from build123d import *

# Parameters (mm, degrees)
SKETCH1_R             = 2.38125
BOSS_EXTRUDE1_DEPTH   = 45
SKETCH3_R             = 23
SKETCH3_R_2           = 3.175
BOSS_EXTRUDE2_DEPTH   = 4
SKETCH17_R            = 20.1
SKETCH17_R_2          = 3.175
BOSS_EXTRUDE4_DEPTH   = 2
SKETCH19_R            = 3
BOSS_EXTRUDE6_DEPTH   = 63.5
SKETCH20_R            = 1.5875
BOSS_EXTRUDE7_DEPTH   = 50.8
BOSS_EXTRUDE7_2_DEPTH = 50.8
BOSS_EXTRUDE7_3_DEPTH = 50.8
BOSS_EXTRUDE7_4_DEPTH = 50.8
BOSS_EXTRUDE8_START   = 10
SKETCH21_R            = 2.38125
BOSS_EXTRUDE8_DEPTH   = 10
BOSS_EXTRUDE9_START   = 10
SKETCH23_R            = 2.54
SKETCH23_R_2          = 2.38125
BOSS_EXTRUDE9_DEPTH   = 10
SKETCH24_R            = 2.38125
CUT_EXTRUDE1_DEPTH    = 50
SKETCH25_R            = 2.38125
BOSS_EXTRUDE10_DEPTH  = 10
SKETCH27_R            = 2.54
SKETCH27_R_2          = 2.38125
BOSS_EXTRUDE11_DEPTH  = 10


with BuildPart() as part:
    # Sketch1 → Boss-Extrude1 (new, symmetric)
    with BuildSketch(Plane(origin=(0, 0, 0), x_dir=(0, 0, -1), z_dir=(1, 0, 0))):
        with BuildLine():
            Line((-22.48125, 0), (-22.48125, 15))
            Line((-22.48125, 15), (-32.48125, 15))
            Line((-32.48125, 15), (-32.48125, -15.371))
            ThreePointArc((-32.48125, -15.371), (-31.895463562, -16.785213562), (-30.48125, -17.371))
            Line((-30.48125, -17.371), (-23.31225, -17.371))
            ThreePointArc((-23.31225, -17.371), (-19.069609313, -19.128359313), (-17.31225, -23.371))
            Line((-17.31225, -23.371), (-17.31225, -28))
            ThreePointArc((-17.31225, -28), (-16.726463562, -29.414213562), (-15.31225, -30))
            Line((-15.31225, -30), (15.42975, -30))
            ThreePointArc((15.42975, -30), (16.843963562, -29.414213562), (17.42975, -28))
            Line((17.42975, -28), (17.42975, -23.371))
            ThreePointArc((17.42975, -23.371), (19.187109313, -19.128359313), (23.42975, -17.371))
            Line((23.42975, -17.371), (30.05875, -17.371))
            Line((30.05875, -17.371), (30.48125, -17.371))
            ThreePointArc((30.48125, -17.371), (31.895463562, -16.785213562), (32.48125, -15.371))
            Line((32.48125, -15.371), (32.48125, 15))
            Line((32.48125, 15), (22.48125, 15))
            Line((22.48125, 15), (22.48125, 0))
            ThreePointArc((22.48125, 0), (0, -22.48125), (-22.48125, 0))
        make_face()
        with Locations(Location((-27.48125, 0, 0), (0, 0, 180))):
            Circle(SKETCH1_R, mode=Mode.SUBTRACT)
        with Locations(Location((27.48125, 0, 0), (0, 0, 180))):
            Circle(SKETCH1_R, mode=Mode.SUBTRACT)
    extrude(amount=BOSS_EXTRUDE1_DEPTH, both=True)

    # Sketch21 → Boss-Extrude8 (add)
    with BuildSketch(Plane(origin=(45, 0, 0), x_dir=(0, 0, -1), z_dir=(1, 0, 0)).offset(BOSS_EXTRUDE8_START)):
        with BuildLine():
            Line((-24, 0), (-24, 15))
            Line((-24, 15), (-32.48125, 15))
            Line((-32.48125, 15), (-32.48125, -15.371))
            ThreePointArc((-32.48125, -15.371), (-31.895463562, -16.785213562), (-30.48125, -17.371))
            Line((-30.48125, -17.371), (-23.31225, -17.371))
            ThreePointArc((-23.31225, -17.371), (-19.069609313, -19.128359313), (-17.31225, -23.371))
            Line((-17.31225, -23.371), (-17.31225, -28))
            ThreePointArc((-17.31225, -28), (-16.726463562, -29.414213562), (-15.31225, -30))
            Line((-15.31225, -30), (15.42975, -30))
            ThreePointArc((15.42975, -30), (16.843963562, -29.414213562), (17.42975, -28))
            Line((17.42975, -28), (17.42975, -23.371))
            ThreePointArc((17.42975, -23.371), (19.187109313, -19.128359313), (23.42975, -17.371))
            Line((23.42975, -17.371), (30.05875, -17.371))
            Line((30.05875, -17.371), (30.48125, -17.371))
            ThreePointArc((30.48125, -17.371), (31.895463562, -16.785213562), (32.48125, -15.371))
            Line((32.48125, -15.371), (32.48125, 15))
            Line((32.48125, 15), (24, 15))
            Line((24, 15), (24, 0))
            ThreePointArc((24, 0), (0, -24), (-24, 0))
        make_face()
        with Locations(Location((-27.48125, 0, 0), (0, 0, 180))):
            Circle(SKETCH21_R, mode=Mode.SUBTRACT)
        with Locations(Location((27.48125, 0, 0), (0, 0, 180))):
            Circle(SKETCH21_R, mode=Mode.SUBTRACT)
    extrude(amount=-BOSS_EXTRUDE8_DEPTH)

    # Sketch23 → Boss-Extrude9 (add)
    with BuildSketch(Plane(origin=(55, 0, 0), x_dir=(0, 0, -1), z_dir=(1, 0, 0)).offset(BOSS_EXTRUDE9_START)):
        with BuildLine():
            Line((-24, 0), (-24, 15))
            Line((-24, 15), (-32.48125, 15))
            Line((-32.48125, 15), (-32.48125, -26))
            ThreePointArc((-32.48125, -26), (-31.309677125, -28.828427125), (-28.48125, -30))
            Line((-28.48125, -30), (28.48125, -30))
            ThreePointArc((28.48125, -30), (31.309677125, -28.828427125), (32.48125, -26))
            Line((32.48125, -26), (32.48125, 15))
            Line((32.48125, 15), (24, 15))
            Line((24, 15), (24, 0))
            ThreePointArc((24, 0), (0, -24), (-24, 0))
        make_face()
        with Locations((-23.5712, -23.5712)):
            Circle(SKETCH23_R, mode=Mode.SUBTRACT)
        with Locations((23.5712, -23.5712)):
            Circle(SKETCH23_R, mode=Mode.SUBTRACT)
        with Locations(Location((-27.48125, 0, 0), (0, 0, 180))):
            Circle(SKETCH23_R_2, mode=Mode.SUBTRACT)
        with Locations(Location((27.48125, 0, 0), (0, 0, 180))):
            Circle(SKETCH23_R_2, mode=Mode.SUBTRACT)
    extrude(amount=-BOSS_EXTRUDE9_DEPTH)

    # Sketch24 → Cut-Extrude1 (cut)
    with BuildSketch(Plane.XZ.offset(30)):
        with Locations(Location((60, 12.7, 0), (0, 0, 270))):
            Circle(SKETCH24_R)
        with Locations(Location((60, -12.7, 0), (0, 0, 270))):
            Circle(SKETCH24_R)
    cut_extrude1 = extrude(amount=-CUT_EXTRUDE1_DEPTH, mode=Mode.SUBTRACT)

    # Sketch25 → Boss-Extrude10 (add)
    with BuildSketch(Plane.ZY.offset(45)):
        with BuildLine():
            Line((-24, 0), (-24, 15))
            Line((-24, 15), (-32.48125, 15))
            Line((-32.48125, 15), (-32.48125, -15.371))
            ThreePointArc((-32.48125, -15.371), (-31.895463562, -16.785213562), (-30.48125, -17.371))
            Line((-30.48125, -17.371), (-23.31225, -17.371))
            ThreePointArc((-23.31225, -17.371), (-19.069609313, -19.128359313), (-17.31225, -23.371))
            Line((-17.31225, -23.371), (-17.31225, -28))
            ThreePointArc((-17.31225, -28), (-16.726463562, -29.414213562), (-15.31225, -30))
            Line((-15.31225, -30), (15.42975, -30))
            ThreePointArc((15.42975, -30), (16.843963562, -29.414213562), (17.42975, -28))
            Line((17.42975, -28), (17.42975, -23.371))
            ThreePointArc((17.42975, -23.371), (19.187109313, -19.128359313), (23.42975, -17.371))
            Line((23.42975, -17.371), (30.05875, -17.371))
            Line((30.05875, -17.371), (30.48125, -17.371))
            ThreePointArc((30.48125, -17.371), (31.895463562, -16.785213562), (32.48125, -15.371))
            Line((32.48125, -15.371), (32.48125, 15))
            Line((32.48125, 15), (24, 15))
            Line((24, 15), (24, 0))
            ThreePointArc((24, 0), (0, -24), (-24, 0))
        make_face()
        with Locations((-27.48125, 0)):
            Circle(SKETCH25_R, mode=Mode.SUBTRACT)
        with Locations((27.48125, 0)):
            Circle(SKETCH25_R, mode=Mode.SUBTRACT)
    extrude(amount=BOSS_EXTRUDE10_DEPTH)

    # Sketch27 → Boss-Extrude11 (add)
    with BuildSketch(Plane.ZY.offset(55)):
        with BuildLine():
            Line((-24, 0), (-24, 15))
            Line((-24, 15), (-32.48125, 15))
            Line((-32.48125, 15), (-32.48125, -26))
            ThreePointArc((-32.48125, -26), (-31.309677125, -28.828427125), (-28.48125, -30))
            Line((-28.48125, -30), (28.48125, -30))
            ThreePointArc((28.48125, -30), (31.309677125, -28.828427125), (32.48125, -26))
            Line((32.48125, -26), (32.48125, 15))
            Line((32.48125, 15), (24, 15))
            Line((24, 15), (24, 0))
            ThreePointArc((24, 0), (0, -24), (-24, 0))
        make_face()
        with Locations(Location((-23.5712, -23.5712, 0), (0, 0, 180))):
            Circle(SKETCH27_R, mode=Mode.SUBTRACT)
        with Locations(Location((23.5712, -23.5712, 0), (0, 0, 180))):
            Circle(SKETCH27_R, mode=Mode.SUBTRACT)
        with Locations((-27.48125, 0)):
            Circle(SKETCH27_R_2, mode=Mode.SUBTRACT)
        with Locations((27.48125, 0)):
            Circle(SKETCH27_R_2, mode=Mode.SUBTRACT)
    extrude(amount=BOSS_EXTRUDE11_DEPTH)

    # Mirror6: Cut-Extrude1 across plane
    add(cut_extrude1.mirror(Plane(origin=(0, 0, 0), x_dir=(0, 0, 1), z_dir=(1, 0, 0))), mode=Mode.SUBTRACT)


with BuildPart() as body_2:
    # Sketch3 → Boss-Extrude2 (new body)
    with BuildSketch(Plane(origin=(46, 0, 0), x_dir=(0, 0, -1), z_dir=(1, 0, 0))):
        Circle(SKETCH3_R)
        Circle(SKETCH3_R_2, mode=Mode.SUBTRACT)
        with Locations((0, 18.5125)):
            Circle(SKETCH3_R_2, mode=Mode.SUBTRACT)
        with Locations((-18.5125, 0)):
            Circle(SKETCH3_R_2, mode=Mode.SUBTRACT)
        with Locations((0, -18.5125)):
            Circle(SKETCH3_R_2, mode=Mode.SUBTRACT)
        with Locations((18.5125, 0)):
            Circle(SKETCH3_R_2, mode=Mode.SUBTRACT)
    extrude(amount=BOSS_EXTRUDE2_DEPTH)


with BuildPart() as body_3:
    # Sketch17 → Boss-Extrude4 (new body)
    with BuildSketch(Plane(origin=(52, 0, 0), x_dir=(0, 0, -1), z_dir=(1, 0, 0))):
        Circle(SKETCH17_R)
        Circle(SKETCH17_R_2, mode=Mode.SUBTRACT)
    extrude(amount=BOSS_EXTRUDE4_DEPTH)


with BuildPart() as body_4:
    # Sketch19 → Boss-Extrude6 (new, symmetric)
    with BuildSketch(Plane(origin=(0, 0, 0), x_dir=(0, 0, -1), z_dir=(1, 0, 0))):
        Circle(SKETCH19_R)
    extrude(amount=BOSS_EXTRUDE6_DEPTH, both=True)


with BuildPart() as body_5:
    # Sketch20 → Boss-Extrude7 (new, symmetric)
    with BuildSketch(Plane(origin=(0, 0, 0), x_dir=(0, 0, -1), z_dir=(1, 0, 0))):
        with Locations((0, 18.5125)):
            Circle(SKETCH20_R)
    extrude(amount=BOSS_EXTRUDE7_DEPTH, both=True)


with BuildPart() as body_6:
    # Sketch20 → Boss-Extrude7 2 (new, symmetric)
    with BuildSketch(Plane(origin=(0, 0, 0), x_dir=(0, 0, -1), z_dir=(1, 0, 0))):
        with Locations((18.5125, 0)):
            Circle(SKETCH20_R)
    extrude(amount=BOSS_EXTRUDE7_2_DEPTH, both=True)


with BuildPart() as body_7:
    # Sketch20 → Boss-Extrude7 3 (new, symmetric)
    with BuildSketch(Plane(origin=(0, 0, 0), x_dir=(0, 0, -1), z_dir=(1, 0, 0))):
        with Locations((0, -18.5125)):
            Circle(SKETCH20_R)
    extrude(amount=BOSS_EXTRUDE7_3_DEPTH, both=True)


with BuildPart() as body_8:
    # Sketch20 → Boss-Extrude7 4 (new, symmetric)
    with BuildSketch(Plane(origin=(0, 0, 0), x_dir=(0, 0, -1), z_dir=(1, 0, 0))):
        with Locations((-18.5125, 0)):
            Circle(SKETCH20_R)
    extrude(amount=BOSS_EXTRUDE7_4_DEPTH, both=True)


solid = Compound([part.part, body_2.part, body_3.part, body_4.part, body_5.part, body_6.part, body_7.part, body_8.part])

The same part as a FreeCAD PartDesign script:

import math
import FreeCAD as App
import Part
import Sketcher

V = App.Vector
Q = App.Units.Quantity

doc = App.newDocument("Part")
body = doc.addObject("PartDesign::Body", "Body")

# Sketch on YZ plane
sketch1 = doc.addObject("Sketcher::SketchObject", "Sketch")
body.addObject(sketch1)
sketch1.AttachmentSupport = (doc.YZ_Plane, [""])
sketch1.MapMode = "FlatFace"
sketch1.addGeometry(Part.LineSegment(V(0, 22.5, 0), V(15, 22.5, 0)), False)
sketch1.addGeometry(Part.LineSegment(V(15, 22.5, 0), V(15, 32.5, 0)), False)
sketch1.addGeometry(Part.LineSegment(V(15, 32.5, 0), V(-15.4, 32.5, 0)), False)
sketch1.addGeometry(Part.ArcOfCircle(Part.Circle(V(-15.4, 30.5, 0), V(0, 0, 1), 2), math.radians(90), math.radians(180)), False)
sketch1.addGeometry(Part.LineSegment(V(-17.4, 30.5, 0), V(-17.4, 23.3, 0)), False)
sketch1.addGeometry(Part.ArcOfCircle(Part.Circle(V(-23.4, 23.3, 0), V(0, 0, 1), 6), math.radians(-90), math.radians(0)), False)
sketch1.addGeometry(Part.LineSegment(V(-23.4, 17.3, 0), V(-28, 17.3, 0)), False)
sketch1.addGeometry(Part.ArcOfCircle(Part.Circle(V(-28, 15.3, 0), V(0, 0, 1), 2), math.radians(90), math.radians(180)), False)
sketch1.addGeometry(Part.LineSegment(V(-30, 15.3, 0), V(-30, -15.4, 0)), False)
sketch1.addGeometry(Part.ArcOfCircle(Part.Circle(V(-28, -15.4, 0), V(0, 0, 1), 2), math.radians(-180), math.radians(-90)), False)
sketch1.addGeometry(Part.LineSegment(V(-28, -17.4, 0), V(-23.4, -17.4, 0)), False)
sketch1.addGeometry(Part.ArcOfCircle(Part.Circle(V(-23.4, -23.4, 0), V(0, 0, 1), 6), math.radians(0), math.radians(90)), False)
sketch1.addGeometry(Part.LineSegment(V(-17.4, -23.4, 0), V(-17.4, -30.5, 0)), False)
sketch1.addGeometry(Part.ArcOfCircle(Part.Circle(V(-15.4, -30.5, 0), V(0, 0, 1), 2), math.radians(-180), math.radians(-90)), False)
sketch1.addGeometry(Part.LineSegment(V(-15.4, -32.5, 0), V(15, -32.5, 0)), False)
sketch1.addGeometry(Part.LineSegment(V(15, -32.5, 0), V(15, -22.5, 0)), False)
sketch1.addGeometry(Part.LineSegment(V(15, -22.5, 0), V(0, -22.5, 0)), False)
sketch1.addGeometry(Part.ArcOfCircle(Part.Circle(V(0, 0, 0), V(0, 0, 1), 22.5), math.radians(90), math.radians(270)), False)
sketch1.addGeometry(Part.Circle(V(0, 27.5, 0), V(0, 0, 1), 2.4), False)
sketch1.addGeometry(Part.Circle(V(0, -27.5, 0), V(0, 0, 1), 2.4), False)
sketch1.addConstraint(Sketcher.Constraint("Coincident", 0, 2, 1, 1))
sketch1.addConstraint(Sketcher.Constraint("Coincident", 1, 2, 2, 1))
sketch1.addConstraint(Sketcher.Constraint("Tangent", 2, 2, 3, 1))
sketch1.addConstraint(Sketcher.Constraint("Tangent", 3, 2, 4, 1))
sketch1.addConstraint(Sketcher.Constraint("Tangent", 4, 2, 5, 2))
sketch1.addConstraint(Sketcher.Constraint("Tangent", 5, 1, 6, 1))
sketch1.addConstraint(Sketcher.Constraint("Tangent", 6, 2, 7, 1))
sketch1.addConstraint(Sketcher.Constraint("Tangent", 7, 2, 8, 1))
sketch1.addConstraint(Sketcher.Constraint("Tangent", 8, 2, 9, 1))
sketch1.addConstraint(Sketcher.Constraint("Tangent", 9, 2, 10, 1))
sketch1.addConstraint(Sketcher.Constraint("Tangent", 10, 2, 11, 2))
sketch1.addConstraint(Sketcher.Constraint("Tangent", 11, 1, 12, 1))
sketch1.addConstraint(Sketcher.Constraint("Tangent", 12, 2, 13, 1))
sketch1.addConstraint(Sketcher.Constraint("Tangent", 13, 2, 14, 1))
sketch1.addConstraint(Sketcher.Constraint("Coincident", 14, 2, 15, 1))
sketch1.addConstraint(Sketcher.Constraint("Coincident", 15, 2, 16, 1))
sketch1.addConstraint(Sketcher.Constraint("Tangent", 16, 2, 17, 2))
sketch1.addConstraint(Sketcher.Constraint("Tangent", 17, 1, 0, 1))
sketch1.addConstraint(Sketcher.Constraint("Horizontal", 0))
sketch1.addConstraint(Sketcher.Constraint("Vertical", 1))
sketch1.addConstraint(Sketcher.Constraint("Horizontal", 2))
sketch1.addConstraint(Sketcher.Constraint("Vertical", 4))
sketch1.addConstraint(Sketcher.Constraint("Horizontal", 6))
sketch1.addConstraint(Sketcher.Constraint("Vertical", 8))
sketch1.addConstraint(Sketcher.Constraint("Horizontal", 10))
sketch1.addConstraint(Sketcher.Constraint("Vertical", 12))
sketch1.addConstraint(Sketcher.Constraint("Horizontal", 14))
sketch1.addConstraint(Sketcher.Constraint("Vertical", 15))
sketch1.addConstraint(Sketcher.Constraint("Horizontal", 16))
sketch1.addConstraint(Sketcher.Constraint("Coincident", 17, 3, -1, 1))
sketch1.addConstraint(Sketcher.Constraint("Equal", 3, 7))
sketch1.addConstraint(Sketcher.Constraint("Equal", 7, 9))
sketch1.addConstraint(Sketcher.Constraint("Equal", 5, 11))
sketch1.addConstraint(Sketcher.Constraint("Equal", 9, 13))
sketch1.addConstraint(Sketcher.Constraint("Equal", 18, 19))
sketch1.addConstraint(Sketcher.Constraint("Symmetric", 18, 3, 19, 3, -1, 1))
sketch1.addConstraint(Sketcher.Constraint("Symmetric", 3, 3, 13, 3, -1))
sketch1.addConstraint(Sketcher.Constraint("PointOnObject", 18, 3, -2))
sketch1.addConstraint(Sketcher.Constraint("Vertical", 1, 2, 14, 2))
sketch1.addConstraint(Sketcher.Constraint("Radius", 3, Q("2 mm")))
sketch1.addConstraint(Sketcher.Constraint("Radius", 5, Q("6 mm")))
sketch1.addConstraint(Sketcher.Constraint("DistanceX", 0, 1, 0, 2, Q("15 mm")))
sketch1.addConstraint(Sketcher.Constraint("DistanceY", 1, 1, 1, 2, Q("10 mm")))
sketch1.addConstraint(Sketcher.Constraint("DistanceX", 7, 3, -1, 1, Q("28 mm")))
sketch1.addConstraint(Sketcher.Constraint("DistanceY", 18, 3, 3, 3, Q("3 mm")))
sketch1.addConstraint(Sketcher.Constraint("Diameter", 18, Q("4.7625 mm")))
sketch1.addConstraint(Sketcher.Constraint("DistanceX", 2, 2, 2, 1, Q("30.371 mm")))
sketch1.addConstraint(Sketcher.Constraint("DistanceY", 4, 2, 4, 1, Q("7.169 mm")))
sketch1.addConstraint(Sketcher.Constraint("DistanceY", 8, 2, 8, 1, Q("30.742 mm")))
sketch1.addConstraint(Sketcher.Constraint("Radius", 17, Q("22.48125 mm")))
pad1 = doc.addObject("PartDesign::Pad", "Pad")
body.addObject(pad1)
pad1.Profile = sketch1
pad1.Length = 90
pad1.Midplane = True

# Sketch on YZ plane
sketch2 = doc.addObject("Sketcher::SketchObject", "Sketch001")
body.addObject(sketch2)
sketch2.AttachmentSupport = (doc.YZ_Plane, [""])
sketch2.MapMode = "FlatFace"
sketch2.AttachmentOffset = App.Placement(V(0, 0, 55), App.Rotation())
sketch2.addGeometry(Part.LineSegment(V(0, 24, 0), V(15, 24, 0)), False)
sketch2.addGeometry(Part.LineSegment(V(15, 24, 0), V(15, 32.5, 0)), False)
sketch2.addGeometry(Part.LineSegment(V(15, 32.5, 0), V(-15.4, 32.5, 0)), False)
sketch2.addGeometry(Part.ArcOfCircle(Part.Circle(V(-15.4, 30.5, 0), V(0, 0, 1), 2), math.radians(90), math.radians(180)), False)
sketch2.addGeometry(Part.LineSegment(V(-17.4, 30.5, 0), V(-17.4, 23.3, 0)), False)
sketch2.addGeometry(Part.ArcOfCircle(Part.Circle(V(-23.4, 23.3, 0), V(0, 0, 1), 6), math.radians(-90), math.radians(0)), False)
sketch2.addGeometry(Part.LineSegment(V(-23.4, 17.3, 0), V(-28, 17.3, 0)), False)
sketch2.addGeometry(Part.ArcOfCircle(Part.Circle(V(-28, 15.3, 0), V(0, 0, 1), 2), math.radians(90), math.radians(180)), False)
sketch2.addGeometry(Part.LineSegment(V(-30, 15.3, 0), V(-30, -15.4, 0)), False)
sketch2.addGeometry(Part.ArcOfCircle(Part.Circle(V(-28, -15.4, 0), V(0, 0, 1), 2), math.radians(-180), math.radians(-90)), False)
sketch2.addGeometry(Part.LineSegment(V(-28, -17.4, 0), V(-23.4, -17.4, 0)), False)
sketch2.addGeometry(Part.ArcOfCircle(Part.Circle(V(-23.4, -23.4, 0), V(0, 0, 1), 6), math.radians(0), math.radians(90)), False)
sketch2.addGeometry(Part.LineSegment(V(-17.4, -23.4, 0), V(-17.4, -30.5, 0)), False)
sketch2.addGeometry(Part.ArcOfCircle(Part.Circle(V(-15.4, -30.5, 0), V(0, 0, 1), 2), math.radians(-180), math.radians(-90)), False)
sketch2.addGeometry(Part.LineSegment(V(-15.4, -32.5, 0), V(15, -32.5, 0)), False)
sketch2.addGeometry(Part.LineSegment(V(15, -32.5, 0), V(15, -24, 0)), False)
sketch2.addGeometry(Part.LineSegment(V(15, -24, 0), V(0, -24, 0)), False)
sketch2.addGeometry(Part.ArcOfCircle(Part.Circle(V(0, 0, 0), V(0, 0, 1), 24), math.radians(90), math.radians(270)), False)
sketch2.addGeometry(Part.Circle(V(0, 27.5, 0), V(0, 0, 1), 2.4), False)
sketch2.addGeometry(Part.Circle(V(0, -27.5, 0), V(0, 0, 1), 2.4), False)
sketch2.addConstraint(Sketcher.Constraint("Coincident", 0, 2, 1, 1))
sketch2.addConstraint(Sketcher.Constraint("Coincident", 1, 2, 2, 1))
sketch2.addConstraint(Sketcher.Constraint("Tangent", 2, 2, 3, 1))
sketch2.addConstraint(Sketcher.Constraint("Tangent", 3, 2, 4, 1))
sketch2.addConstraint(Sketcher.Constraint("Tangent", 4, 2, 5, 2))
sketch2.addConstraint(Sketcher.Constraint("Tangent", 5, 1, 6, 1))
sketch2.addConstraint(Sketcher.Constraint("Tangent", 6, 2, 7, 1))
sketch2.addConstraint(Sketcher.Constraint("Tangent", 7, 2, 8, 1))
sketch2.addConstraint(Sketcher.Constraint("Tangent", 8, 2, 9, 1))
sketch2.addConstraint(Sketcher.Constraint("Tangent", 9, 2, 10, 1))
sketch2.addConstraint(Sketcher.Constraint("Tangent", 10, 2, 11, 2))
sketch2.addConstraint(Sketcher.Constraint("Tangent", 11, 1, 12, 1))
sketch2.addConstraint(Sketcher.Constraint("Tangent", 12, 2, 13, 1))
sketch2.addConstraint(Sketcher.Constraint("Tangent", 13, 2, 14, 1))
sketch2.addConstraint(Sketcher.Constraint("Coincident", 14, 2, 15, 1))
sketch2.addConstraint(Sketcher.Constraint("Coincident", 15, 2, 16, 1))
sketch2.addConstraint(Sketcher.Constraint("Tangent", 16, 2, 17, 2))
sketch2.addConstraint(Sketcher.Constraint("Tangent", 17, 1, 0, 1))
sketch2.addConstraint(Sketcher.Constraint("Horizontal", 0))
sketch2.addConstraint(Sketcher.Constraint("Vertical", 1))
sketch2.addConstraint(Sketcher.Constraint("Horizontal", 2))
sketch2.addConstraint(Sketcher.Constraint("Vertical", 4))
sketch2.addConstraint(Sketcher.Constraint("Horizontal", 6))
sketch2.addConstraint(Sketcher.Constraint("Vertical", 8))
sketch2.addConstraint(Sketcher.Constraint("Horizontal", 10))
sketch2.addConstraint(Sketcher.Constraint("Vertical", 12))
sketch2.addConstraint(Sketcher.Constraint("Horizontal", 14))
sketch2.addConstraint(Sketcher.Constraint("Vertical", 15))
sketch2.addConstraint(Sketcher.Constraint("Horizontal", 16))
sketch2.addConstraint(Sketcher.Constraint("Coincident", 17, 3, -1, 1))
sketch2.addConstraint(Sketcher.Constraint("Equal", 3, 7))
sketch2.addConstraint(Sketcher.Constraint("Equal", 7, 9))
sketch2.addConstraint(Sketcher.Constraint("Equal", 5, 11))
sketch2.addConstraint(Sketcher.Constraint("Equal", 9, 13))
sketch2.addConstraint(Sketcher.Constraint("Equal", 18, 19))
sketch2.addConstraint(Sketcher.Constraint("Symmetric", 18, 3, 19, 3, -1, 1))
sketch2.addConstraint(Sketcher.Constraint("Symmetric", 3, 3, 13, 3, -1))
sketch2.addConstraint(Sketcher.Constraint("PointOnObject", 18, 3, -2))
sketch2.addConstraint(Sketcher.Constraint("Vertical", 1, 2, 14, 2))
sketch2.addConstraint(Sketcher.Constraint("Radius", 3, Q("2 mm")))
sketch2.addConstraint(Sketcher.Constraint("Radius", 5, Q("6 mm")))
sketch2.addConstraint(Sketcher.Constraint("Radius", 17, Q("24 mm")))
sketch2.addConstraint(Sketcher.Constraint("DistanceX", 0, 1, 0, 2, Q("15 mm")))
sketch2.addConstraint(Sketcher.Constraint("DistanceX", 7, 3, -1, 1, Q("28 mm")))
sketch2.addConstraint(Sketcher.Constraint("DistanceY", 18, 3, 3, 3, Q("3 mm")))
sketch2.addConstraint(Sketcher.Constraint("Diameter", 18, Q("4.7625 mm")))
sketch2.addConstraint(Sketcher.Constraint("DistanceX", 2, 2, 2, 1, Q("30.371 mm")))
sketch2.addConstraint(Sketcher.Constraint("DistanceY", 4, 2, 4, 1, Q("7.169 mm")))
sketch2.addConstraint(Sketcher.Constraint("DistanceY", 8, 2, 8, 1, Q("30.742 mm")))
sketch2.addConstraint(Sketcher.Constraint("DistanceY", 12, 2, 12, 1, Q("7.0515 mm")))
pad2 = doc.addObject("PartDesign::Pad", "Pad001")
body.addObject(pad2)
pad2.Profile = sketch2
pad2.Length = 10
pad2.Reversed = True

# Sketch on YZ plane
sketch3 = doc.addObject("Sketcher::SketchObject", "Sketch002")
body.addObject(sketch3)
sketch3.AttachmentSupport = (doc.YZ_Plane, [""])
sketch3.MapMode = "FlatFace"
sketch3.AttachmentOffset = App.Placement(V(0, 0, 65), App.Rotation())
sketch3.addGeometry(Part.LineSegment(V(0, 24, 0), V(15, 24, 0)), False)
sketch3.addGeometry(Part.LineSegment(V(15, 24, 0), V(15, 32.5, 0)), False)
sketch3.addGeometry(Part.LineSegment(V(15, 32.5, 0), V(-26, 32.5, 0)), False)
sketch3.addGeometry(Part.ArcOfCircle(Part.Circle(V(-26, 28.5, 0), V(0, 0, 1), 4), math.radians(90), math.radians(180)), False)
sketch3.addGeometry(Part.LineSegment(V(-30, 28.5, 0), V(-30, -28.5, 0)), False)
sketch3.addGeometry(Part.ArcOfCircle(Part.Circle(V(-26, -28.5, 0), V(0, 0, 1), 4), math.radians(180), math.radians(270)), False)
sketch3.addGeometry(Part.LineSegment(V(-26, -32.5, 0), V(15, -32.5, 0)), False)
sketch3.addGeometry(Part.LineSegment(V(15, -32.5, 0), V(15, -24, 0)), False)
sketch3.addGeometry(Part.LineSegment(V(15, -24, 0), V(0, -24, 0)), False)
sketch3.addGeometry(Part.ArcOfCircle(Part.Circle(V(0, 0, 0), V(0, 0, 1), 24), math.radians(90), math.radians(270)), False)
sketch3.addGeometry(Part.Circle(V(-23.6, 23.6, 0), V(0, 0, 1), 2.5), False)
sketch3.addGeometry(Part.Circle(V(-23.6, -23.6, 0), V(0, 0, 1), 2.5), False)
sketch3.addGeometry(Part.Circle(V(0, 27.5, 0), V(0, 0, 1), 2.4), False)
sketch3.addGeometry(Part.Circle(V(0, -27.5, 0), V(0, 0, 1), 2.4), False)
sketch3.addConstraint(Sketcher.Constraint("Coincident", 0, 2, 1, 1))
sketch3.addConstraint(Sketcher.Constraint("Coincident", 1, 2, 2, 1))
sketch3.addConstraint(Sketcher.Constraint("Tangent", 2, 2, 3, 1))
sketch3.addConstraint(Sketcher.Constraint("Tangent", 3, 2, 4, 1))
sketch3.addConstraint(Sketcher.Constraint("Tangent", 4, 2, 5, 1))
sketch3.addConstraint(Sketcher.Constraint("Tangent", 5, 2, 6, 1))
sketch3.addConstraint(Sketcher.Constraint("Coincident", 6, 2, 7, 1))
sketch3.addConstraint(Sketcher.Constraint("Coincident", 7, 2, 8, 1))
sketch3.addConstraint(Sketcher.Constraint("Tangent", 8, 2, 9, 2))
sketch3.addConstraint(Sketcher.Constraint("Tangent", 9, 1, 0, 1))
sketch3.addConstraint(Sketcher.Constraint("Horizontal", 0))
sketch3.addConstraint(Sketcher.Constraint("Vertical", 1))
sketch3.addConstraint(Sketcher.Constraint("Horizontal", 2))
sketch3.addConstraint(Sketcher.Constraint("Vertical", 4))
sketch3.addConstraint(Sketcher.Constraint("Horizontal", 6))
sketch3.addConstraint(Sketcher.Constraint("Vertical", 7))
sketch3.addConstraint(Sketcher.Constraint("Horizontal", 8))
sketch3.addConstraint(Sketcher.Constraint("Coincident", 9, 3, -1, 1))
sketch3.addConstraint(Sketcher.Constraint("Equal", 3, 5))
sketch3.addConstraint(Sketcher.Constraint("Equal", 10, 11))
sketch3.addConstraint(Sketcher.Constraint("Equal", 12, 13))
sketch3.addConstraint(Sketcher.Constraint("Symmetric", 12, 3, 13, 3, -1, 1))
sketch3.addConstraint(Sketcher.Constraint("Symmetric", 10, 3, 11, 3, -1))
sketch3.addConstraint(Sketcher.Constraint("Symmetric", 1, 2, 6, 2, -1))
sketch3.addConstraint(Sketcher.Constraint("PointOnObject", 12, 3, -2))
sketch3.addConstraint(Sketcher.Constraint("Radius", 3, Q("4 mm")))
sketch3.addConstraint(Sketcher.Constraint("Radius", 9, Q("24 mm")))
sketch3.addConstraint(Sketcher.Constraint("Diameter", 10, Q("5.08 mm")))
sketch3.addConstraint(Sketcher.Constraint("DistanceX", 0, 1, 0, 2, Q("15 mm")))
sketch3.addConstraint(Sketcher.Constraint("DistanceX", 2, 2, 2, 1, Q("41 mm")))
sketch3.addConstraint(Sketcher.Constraint("DistanceY", 12, 3, 3, 3, Q("1 mm")))
sketch3.addConstraint(Sketcher.Constraint("Diameter", 12, Q("4.7625 mm")))
sketch3.addConstraint(Sketcher.Constraint("DistanceY", 4, 2, 4, 1, Q("56.9625 mm")))
sketch3.addConstraint(Sketcher.Constraint("DistanceX", 10, 3, -1, 1, Q("23.5712 mm")))
sketch3.addConstraint(Sketcher.Constraint("DistanceY", -1, 1, 10, 3, Q("23.5712 mm")))
pad3 = doc.addObject("PartDesign::Pad", "Pad002")
body.addObject(pad3)
pad3.Profile = sketch3
pad3.Length = 10
pad3.Reversed = True

# Sketch on XZ plane
sketch4 = doc.addObject("Sketcher::SketchObject", "Sketch003")
body.addObject(sketch4)
sketch4.AttachmentSupport = (doc.XZ_Plane, [""])
sketch4.MapMode = "FlatFace"
sketch4.AttachmentOffset = App.Placement(V(0, 0, 30), App.Rotation())
sketch4.addGeometry(Part.Circle(V(60, 12.7, 0), V(0, 0, 1), 2.4), False)
sketch4.addGeometry(Part.Circle(V(60, -12.7, 0), V(0, 0, 1), 2.4), False)
sketch4.addConstraint(Sketcher.Constraint("Equal", 0, 1))
sketch4.addConstraint(Sketcher.Constraint("Symmetric", 0, 3, 1, 3, -1))
sketch4.addConstraint(Sketcher.Constraint("DistanceX", -1, 1, 0, 3, Q("60 mm")))
sketch4.addConstraint(Sketcher.Constraint("Diameter", 0, Q("4.7625 mm")))
sketch4.addConstraint(Sketcher.Constraint("DistanceY", -1, 1, 0, 3, Q("12.7 mm")))
pocket1 = doc.addObject("PartDesign::Pocket", "Pocket")
body.addObject(pocket1)
pocket1.Profile = sketch4
pocket1.Length = 50

# Sketch on YZ plane
sketch5 = doc.addObject("Sketcher::SketchObject", "Sketch004")
body.addObject(sketch5)
sketch5.AttachmentSupport = (doc.YZ_Plane, [""])
sketch5.MapMode = "FlatFace"
sketch5.AttachmentOffset = App.Placement(V(0, 0, -45), App.Rotation())
sketch5.addGeometry(Part.LineSegment(V(0, -24, 0), V(15, -24, 0)), False)
sketch5.addGeometry(Part.LineSegment(V(15, -24, 0), V(15, -32.5, 0)), False)
sketch5.addGeometry(Part.LineSegment(V(15, -32.5, 0), V(-15.4, -32.5, 0)), False)
sketch5.addGeometry(Part.ArcOfCircle(Part.Circle(V(-15.4, -30.5, 0), V(0, 0, 1), 2), math.radians(-180), math.radians(-90)), False)
sketch5.addGeometry(Part.LineSegment(V(-17.4, -30.5, 0), V(-17.4, -23.3, 0)), False)
sketch5.addGeometry(Part.ArcOfCircle(Part.Circle(V(-23.4, -23.3, 0), V(0, 0, 1), 6), math.radians(0), math.radians(90)), False)
sketch5.addGeometry(Part.LineSegment(V(-23.4, -17.3, 0), V(-28, -17.3, 0)), False)
sketch5.addGeometry(Part.ArcOfCircle(Part.Circle(V(-28, -15.3, 0), V(0, 0, 1), 2), math.radians(-180), math.radians(-90)), False)
sketch5.addGeometry(Part.LineSegment(V(-30, -15.3, 0), V(-30, 15.4, 0)), False)
sketch5.addGeometry(Part.ArcOfCircle(Part.Circle(V(-28, 15.4, 0), V(0, 0, 1), 2), math.radians(90), math.radians(180)), False)
sketch5.addGeometry(Part.LineSegment(V(-28, 17.4, 0), V(-23.4, 17.4, 0)), False)
sketch5.addGeometry(Part.ArcOfCircle(Part.Circle(V(-23.4, 23.4, 0), V(0, 0, 1), 6), math.radians(-90), math.radians(0)), False)
sketch5.addGeometry(Part.LineSegment(V(-17.4, 23.4, 0), V(-17.4, 30.5, 0)), False)
sketch5.addGeometry(Part.ArcOfCircle(Part.Circle(V(-15.4, 30.5, 0), V(0, 0, 1), 2), math.radians(90), math.radians(180)), False)
sketch5.addGeometry(Part.LineSegment(V(-15.4, 32.5, 0), V(15, 32.5, 0)), False)
sketch5.addGeometry(Part.LineSegment(V(15, 32.5, 0), V(15, 24, 0)), False)
sketch5.addGeometry(Part.LineSegment(V(15, 24, 0), V(0, 24, 0)), False)
sketch5.addGeometry(Part.ArcOfCircle(Part.Circle(V(0, 0, 0), V(0, 0, 1), 24), math.radians(90), math.radians(270)), False)
sketch5.addGeometry(Part.Circle(V(0, -27.5, 0), V(0, 0, 1), 2.4), False)
sketch5.addGeometry(Part.Circle(V(0, 27.5, 0), V(0, 0, 1), 2.4), False)
sketch5.addConstraint(Sketcher.Constraint("Coincident", 0, 2, 1, 1))
sketch5.addConstraint(Sketcher.Constraint("Coincident", 1, 2, 2, 1))
sketch5.addConstraint(Sketcher.Constraint("Tangent", 2, 2, 3, 2))
sketch5.addConstraint(Sketcher.Constraint("Tangent", 3, 1, 4, 1))
sketch5.addConstraint(Sketcher.Constraint("Tangent", 4, 2, 5, 1))
sketch5.addConstraint(Sketcher.Constraint("Tangent", 5, 2, 6, 1))
sketch5.addConstraint(Sketcher.Constraint("Tangent", 6, 2, 7, 2))
sketch5.addConstraint(Sketcher.Constraint("Tangent", 7, 1, 8, 1))
sketch5.addConstraint(Sketcher.Constraint("Tangent", 8, 2, 9, 2))
sketch5.addConstraint(Sketcher.Constraint("Tangent", 9, 1, 10, 1))
sketch5.addConstraint(Sketcher.Constraint("Tangent", 10, 2, 11, 1))
sketch5.addConstraint(Sketcher.Constraint("Tangent", 11, 2, 12, 1))
sketch5.addConstraint(Sketcher.Constraint("Tangent", 12, 2, 13, 2))
sketch5.addConstraint(Sketcher.Constraint("Tangent", 13, 1, 14, 1))
sketch5.addConstraint(Sketcher.Constraint("Coincident", 14, 2, 15, 1))
sketch5.addConstraint(Sketcher.Constraint("Coincident", 15, 2, 16, 1))
sketch5.addConstraint(Sketcher.Constraint("Tangent", 16, 2, 17, 1))
sketch5.addConstraint(Sketcher.Constraint("Tangent", 17, 2, 0, 1))
sketch5.addConstraint(Sketcher.Constraint("Horizontal", 0))
sketch5.addConstraint(Sketcher.Constraint("Vertical", 1))
sketch5.addConstraint(Sketcher.Constraint("Horizontal", 2))
sketch5.addConstraint(Sketcher.Constraint("Vertical", 4))
sketch5.addConstraint(Sketcher.Constraint("Horizontal", 6))
sketch5.addConstraint(Sketcher.Constraint("Vertical", 8))
sketch5.addConstraint(Sketcher.Constraint("Horizontal", 10))
sketch5.addConstraint(Sketcher.Constraint("Vertical", 12))
sketch5.addConstraint(Sketcher.Constraint("Horizontal", 14))
sketch5.addConstraint(Sketcher.Constraint("Vertical", 15))
sketch5.addConstraint(Sketcher.Constraint("Horizontal", 16))
sketch5.addConstraint(Sketcher.Constraint("Coincident", 17, 3, -1, 1))
sketch5.addConstraint(Sketcher.Constraint("Equal", 3, 7))
sketch5.addConstraint(Sketcher.Constraint("Equal", 7, 9))
sketch5.addConstraint(Sketcher.Constraint("Equal", 5, 11))
sketch5.addConstraint(Sketcher.Constraint("Equal", 9, 13))
sketch5.addConstraint(Sketcher.Constraint("Equal", 18, 19))
sketch5.addConstraint(Sketcher.Constraint("Symmetric", 18, 3, 19, 3, -1, 1))
sketch5.addConstraint(Sketcher.Constraint("Symmetric", 3, 3, 13, 3, -1))
sketch5.addConstraint(Sketcher.Constraint("PointOnObject", 18, 3, -2))
sketch5.addConstraint(Sketcher.Constraint("Vertical", 1, 2, 14, 2))
sketch5.addConstraint(Sketcher.Constraint("Radius", 3, Q("2 mm")))
sketch5.addConstraint(Sketcher.Constraint("Radius", 5, Q("6 mm")))
sketch5.addConstraint(Sketcher.Constraint("Radius", 17, Q("24 mm")))
sketch5.addConstraint(Sketcher.Constraint("DistanceX", 0, 1, 0, 2, Q("15 mm")))
sketch5.addConstraint(Sketcher.Constraint("DistanceX", 7, 3, -1, 1, Q("28 mm")))
sketch5.addConstraint(Sketcher.Constraint("DistanceY", 3, 3, 18, 3, Q("3 mm")))
sketch5.addConstraint(Sketcher.Constraint("Diameter", 18, Q("4.7625 mm")))
sketch5.addConstraint(Sketcher.Constraint("DistanceX", 2, 2, 2, 1, Q("30.371 mm")))
sketch5.addConstraint(Sketcher.Constraint("DistanceY", 4, 1, 4, 2, Q("7.169 mm")))
sketch5.addConstraint(Sketcher.Constraint("DistanceY", 8, 1, 8, 2, Q("30.742 mm")))
sketch5.addConstraint(Sketcher.Constraint("DistanceY", 12, 1, 12, 2, Q("7.0515 mm")))
pad4 = doc.addObject("PartDesign::Pad", "Pad003")
body.addObject(pad4)
pad4.Profile = sketch5
pad4.Length = 10
pad4.Reversed = True

# Sketch on YZ plane
sketch6 = doc.addObject("Sketcher::SketchObject", "Sketch005")
body.addObject(sketch6)
sketch6.AttachmentSupport = (doc.YZ_Plane, [""])
sketch6.MapMode = "FlatFace"
sketch6.AttachmentOffset = App.Placement(V(0, 0, -55), App.Rotation())
sketch6.addGeometry(Part.LineSegment(V(0, -24, 0), V(15, -24, 0)), False)
sketch6.addGeometry(Part.LineSegment(V(15, -24, 0), V(15, -32.5, 0)), False)
sketch6.addGeometry(Part.LineSegment(V(15, -32.5, 0), V(-26, -32.5, 0)), False)
sketch6.addGeometry(Part.ArcOfCircle(Part.Circle(V(-26, -28.5, 0), V(0, 0, 1), 4), math.radians(180), math.radians(270)), False)
sketch6.addGeometry(Part.LineSegment(V(-30, -28.5, 0), V(-30, 28.5, 0)), False)
sketch6.addGeometry(Part.ArcOfCircle(Part.Circle(V(-26, 28.5, 0), V(0, 0, 1), 4), math.radians(90), math.radians(180)), False)
sketch6.addGeometry(Part.LineSegment(V(-26, 32.5, 0), V(15, 32.5, 0)), False)
sketch6.addGeometry(Part.LineSegment(V(15, 32.5, 0), V(15, 24, 0)), False)
sketch6.addGeometry(Part.LineSegment(V(15, 24, 0), V(0, 24, 0)), False)
sketch6.addGeometry(Part.ArcOfCircle(Part.Circle(V(0, 0, 0), V(0, 0, 1), 24), math.radians(90), math.radians(270)), False)
sketch6.addGeometry(Part.Circle(V(-23.6, -23.6, 0), V(0, 0, 1), 2.5), False)
sketch6.addGeometry(Part.Circle(V(-23.6, 23.6, 0), V(0, 0, 1), 2.5), False)
sketch6.addGeometry(Part.Circle(V(0, -27.5, 0), V(0, 0, 1), 2.4), False)
sketch6.addGeometry(Part.Circle(V(0, 27.5, 0), V(0, 0, 1), 2.4), False)
sketch6.addConstraint(Sketcher.Constraint("Coincident", 0, 2, 1, 1))
sketch6.addConstraint(Sketcher.Constraint("Coincident", 1, 2, 2, 1))
sketch6.addConstraint(Sketcher.Constraint("Tangent", 2, 2, 3, 2))
sketch6.addConstraint(Sketcher.Constraint("Tangent", 3, 1, 4, 1))
sketch6.addConstraint(Sketcher.Constraint("Tangent", 4, 2, 5, 2))
sketch6.addConstraint(Sketcher.Constraint("Tangent", 5, 1, 6, 1))
sketch6.addConstraint(Sketcher.Constraint("Coincident", 6, 2, 7, 1))
sketch6.addConstraint(Sketcher.Constraint("Coincident", 7, 2, 8, 1))
sketch6.addConstraint(Sketcher.Constraint("Tangent", 8, 2, 9, 1))
sketch6.addConstraint(Sketcher.Constraint("Tangent", 9, 2, 0, 1))
sketch6.addConstraint(Sketcher.Constraint("Horizontal", 0))
sketch6.addConstraint(Sketcher.Constraint("Vertical", 1))
sketch6.addConstraint(Sketcher.Constraint("Horizontal", 2))
sketch6.addConstraint(Sketcher.Constraint("Vertical", 4))
sketch6.addConstraint(Sketcher.Constraint("Horizontal", 6))
sketch6.addConstraint(Sketcher.Constraint("Vertical", 7))
sketch6.addConstraint(Sketcher.Constraint("Horizontal", 8))
sketch6.addConstraint(Sketcher.Constraint("Coincident", 9, 3, -1, 1))
sketch6.addConstraint(Sketcher.Constraint("Equal", 3, 5))
sketch6.addConstraint(Sketcher.Constraint("Equal", 10, 11))
sketch6.addConstraint(Sketcher.Constraint("Equal", 12, 13))
sketch6.addConstraint(Sketcher.Constraint("Symmetric", 12, 3, 13, 3, -1, 1))
sketch6.addConstraint(Sketcher.Constraint("Symmetric", 10, 3, 11, 3, -1))
sketch6.addConstraint(Sketcher.Constraint("Symmetric", 1, 2, 6, 2, -1))
sketch6.addConstraint(Sketcher.Constraint("PointOnObject", 12, 3, -2))
sketch6.addConstraint(Sketcher.Constraint("Radius", 3, Q("4 mm")))
sketch6.addConstraint(Sketcher.Constraint("Radius", 9, Q("24 mm")))
sketch6.addConstraint(Sketcher.Constraint("Diameter", 10, Q("5.08 mm")))
sketch6.addConstraint(Sketcher.Constraint("DistanceX", 0, 1, 0, 2, Q("15 mm")))
sketch6.addConstraint(Sketcher.Constraint("DistanceX", 2, 2, 2, 1, Q("41 mm")))
sketch6.addConstraint(Sketcher.Constraint("DistanceY", 3, 3, 12, 3, Q("1 mm")))
sketch6.addConstraint(Sketcher.Constraint("Diameter", 12, Q("4.7625 mm")))
sketch6.addConstraint(Sketcher.Constraint("DistanceY", 4, 1, 4, 2, Q("56.9625 mm")))
sketch6.addConstraint(Sketcher.Constraint("DistanceX", 10, 3, -1, 1, Q("23.5712 mm")))
sketch6.addConstraint(Sketcher.Constraint("DistanceY", 10, 3, -1, 1, Q("23.5712 mm")))
pad5 = doc.addObject("PartDesign::Pad", "Pad004")
body.addObject(pad5)
pad5.Profile = sketch6
pad5.Length = 10
pad5.Reversed = True
doc.recompute()

mirrored = doc.addObject("PartDesign::Mirrored", "Mirrored")
body.addObject(mirrored)
mirrored.Originals = [pocket1]
mirrored.MirrorPlane = (doc.YZ_Plane, [""])
body.Tip = mirrored
body2 = doc.addObject("PartDesign::Body", "Body001")

# Sketch on YZ plane
sketch7 = doc.addObject("Sketcher::SketchObject", "Sketch006")
body2.addObject(sketch7)
sketch7.AttachmentSupport = (doc.getObject("YZ_Plane001"), [""])
sketch7.MapMode = "FlatFace"
sketch7.AttachmentOffset = App.Placement(V(0, 0, 46), App.Rotation())
sketch7.addGeometry(Part.Circle(V(0, 0, 0), V(0, 0, 1), 23), False)
sketch7.addGeometry(Part.Circle(V(-18.5, 0, 0), V(0, 0, 1), 3.2), False)
sketch7.addGeometry(Part.Circle(V(0, 18.5, 0), V(0, 0, 1), 3.2), False)
sketch7.addGeometry(Part.Circle(V(0, 0, 0), V(0, 0, 1), 3.2), False)
sketch7.addGeometry(Part.Circle(V(0, -18.5, 0), V(0, 0, 1), 3.2), False)
sketch7.addGeometry(Part.Circle(V(18.5, 0, 0), V(0, 0, 1), 3.2), False)
sketch7.addConstraint(Sketcher.Constraint("Coincident", 0, 3, -1, 1))
sketch7.addConstraint(Sketcher.Constraint("Coincident", 3, 3, -1, 1))
sketch7.addConstraint(Sketcher.Constraint("Equal", 1, 2))
sketch7.addConstraint(Sketcher.Constraint("Equal", 2, 3))
sketch7.addConstraint(Sketcher.Constraint("Equal", 3, 4))
sketch7.addConstraint(Sketcher.Constraint("Equal", 4, 5))
sketch7.addConstraint(Sketcher.Constraint("Symmetric", 2, 3, 4, 3, -1, 1))
sketch7.addConstraint(Sketcher.Constraint("Symmetric", 1, 3, 5, 3, -1, 1))
sketch7.addConstraint(Sketcher.Constraint("PointOnObject", 1, 3, -1))
sketch7.addConstraint(Sketcher.Constraint("PointOnObject", 2, 3, -2))
sketch7.addConstraint(Sketcher.Constraint("Diameter", 0, Q("46 mm")))
sketch7.addConstraint(Sketcher.Constraint("Diameter", 1, Q("6.35 mm")))
sketch7.addConstraint(Sketcher.Constraint("DistanceY", 4, 3, 2, 3, Q("37.025 mm")))
sketch7.addConstraint(Sketcher.Constraint("DistanceX", 1, 3, 5, 3, Q("37.025 mm")))
pad6 = doc.addObject("PartDesign::Pad", "Pad005")
body2.addObject(pad6)
pad6.Profile = sketch7
pad6.Length = 4
body3 = doc.addObject("PartDesign::Body", "Body002")

# Sketch on YZ plane
sketch8 = doc.addObject("Sketcher::SketchObject", "Sketch007")
body3.addObject(sketch8)
sketch8.AttachmentSupport = (doc.getObject("YZ_Plane002"), [""])
sketch8.MapMode = "FlatFace"
sketch8.AttachmentOffset = App.Placement(V(0, 0, 52), App.Rotation())
sketch8.addGeometry(Part.Circle(V(0, 0, 0), V(0, 0, 1), 20.1), False)
sketch8.addGeometry(Part.Circle(V(0, 0, 0), V(0, 0, 1), 3.2), False)
sketch8.addConstraint(Sketcher.Constraint("Coincident", 0, 3, -1, 1))
sketch8.addConstraint(Sketcher.Constraint("Coincident", 1, 3, -1, 1))
sketch8.addConstraint(Sketcher.Constraint("Diameter", 0, Q("40.2 mm")))
sketch8.addConstraint(Sketcher.Constraint("Diameter", 1, Q("6.35 mm")))
pad7 = doc.addObject("PartDesign::Pad", "Pad006")
body3.addObject(pad7)
pad7.Profile = sketch8
pad7.Length = 2
body4 = doc.addObject("PartDesign::Body", "Body003")

# Sketch on YZ plane
sketch9 = doc.addObject("Sketcher::SketchObject", "Sketch008")
body4.addObject(sketch9)
sketch9.AttachmentSupport = (doc.getObject("YZ_Plane003"), [""])
sketch9.MapMode = "FlatFace"
sketch9.addGeometry(Part.Circle(V(0, 0, 0), V(0, 0, 1), 3), False)
sketch9.addConstraint(Sketcher.Constraint("Coincident", 0, 3, -1, 1))
sketch9.addConstraint(Sketcher.Constraint("Diameter", 0, Q("6 mm")))
pad8 = doc.addObject("PartDesign::Pad", "Pad007")
body4.addObject(pad8)
pad8.Profile = sketch9
pad8.Length = 127
pad8.Midplane = True
body5 = doc.addObject("PartDesign::Body", "Body004")

# Sketch on YZ plane
sketch10 = doc.addObject("Sketcher::SketchObject", "Sketch009")
body5.addObject(sketch10)
sketch10.AttachmentSupport = (doc.getObject("YZ_Plane004"), [""])
sketch10.MapMode = "FlatFace"
sketch10.addGeometry(Part.Circle(V(18.5, 0, 0), V(0, 0, 1), 1.6), False)
sketch10.addConstraint(Sketcher.Constraint("PointOnObject", 0, 3, -1))
sketch10.addConstraint(Sketcher.Constraint("Diameter", 0, Q("3.175 mm")))
sketch10.addConstraint(Sketcher.Constraint("DistanceX", -1, 1, 0, 3, Q("18.5125 mm")))
pad9 = doc.addObject("PartDesign::Pad", "Pad008")
body5.addObject(pad9)
pad9.Profile = sketch10
pad9.Length = 101.6
pad9.Midplane = True
body6 = doc.addObject("PartDesign::Body", "Body005")

# Sketch on YZ plane
sketch11 = doc.addObject("Sketcher::SketchObject", "Sketch010")
body6.addObject(sketch11)
sketch11.AttachmentSupport = (doc.getObject("YZ_Plane005"), [""])
sketch11.MapMode = "FlatFace"
sketch11.addGeometry(Part.Circle(V(0, -18.5, 0), V(0, 0, 1), 1.6), False)
sketch11.addConstraint(Sketcher.Constraint("PointOnObject", 0, 3, -2))
sketch11.addConstraint(Sketcher.Constraint("Diameter", 0, Q("3.175 mm")))
sketch11.addConstraint(Sketcher.Constraint("DistanceY", 0, 3, -1, 1, Q("18.5125 mm")))
pad10 = doc.addObject("PartDesign::Pad", "Pad009")
body6.addObject(pad10)
pad10.Profile = sketch11
pad10.Length = 101.6
pad10.Midplane = True
body7 = doc.addObject("PartDesign::Body", "Body006")

# Sketch on YZ plane
sketch12 = doc.addObject("Sketcher::SketchObject", "Sketch011")
body7.addObject(sketch12)
sketch12.AttachmentSupport = (doc.getObject("YZ_Plane006"), [""])
sketch12.MapMode = "FlatFace"
sketch12.addGeometry(Part.Circle(V(-18.5, 0, 0), V(0, 0, 1), 1.6), False)
sketch12.addConstraint(Sketcher.Constraint("PointOnObject", 0, 3, -1))
sketch12.addConstraint(Sketcher.Constraint("Diameter", 0, Q("3.175 mm")))
sketch12.addConstraint(Sketcher.Constraint("DistanceX", 0, 3, -1, 1, Q("18.5125 mm")))
pad11 = doc.addObject("PartDesign::Pad", "Pad010")
body7.addObject(pad11)
pad11.Profile = sketch12
pad11.Length = 101.6
pad11.Midplane = True
body8 = doc.addObject("PartDesign::Body", "Body007")

# Sketch on YZ plane
sketch13 = doc.addObject("Sketcher::SketchObject", "Sketch012")
body8.addObject(sketch13)
sketch13.AttachmentSupport = (doc.getObject("YZ_Plane007"), [""])
sketch13.MapMode = "FlatFace"
sketch13.addGeometry(Part.Circle(V(0, 18.5, 0), V(0, 0, 1), 1.6), False)
sketch13.addConstraint(Sketcher.Constraint("PointOnObject", 0, 3, -2))
sketch13.addConstraint(Sketcher.Constraint("Diameter", 0, Q("3.175 mm")))
sketch13.addConstraint(Sketcher.Constraint("DistanceY", -1, 1, 0, 3, Q("18.5125 mm")))
pad12 = doc.addObject("PartDesign::Pad", "Pad011")
body8.addObject(pad12)
pad12.Profile = sketch13
pad12.Length = 101.6
pad12.Midplane = True

doc.recompute()
